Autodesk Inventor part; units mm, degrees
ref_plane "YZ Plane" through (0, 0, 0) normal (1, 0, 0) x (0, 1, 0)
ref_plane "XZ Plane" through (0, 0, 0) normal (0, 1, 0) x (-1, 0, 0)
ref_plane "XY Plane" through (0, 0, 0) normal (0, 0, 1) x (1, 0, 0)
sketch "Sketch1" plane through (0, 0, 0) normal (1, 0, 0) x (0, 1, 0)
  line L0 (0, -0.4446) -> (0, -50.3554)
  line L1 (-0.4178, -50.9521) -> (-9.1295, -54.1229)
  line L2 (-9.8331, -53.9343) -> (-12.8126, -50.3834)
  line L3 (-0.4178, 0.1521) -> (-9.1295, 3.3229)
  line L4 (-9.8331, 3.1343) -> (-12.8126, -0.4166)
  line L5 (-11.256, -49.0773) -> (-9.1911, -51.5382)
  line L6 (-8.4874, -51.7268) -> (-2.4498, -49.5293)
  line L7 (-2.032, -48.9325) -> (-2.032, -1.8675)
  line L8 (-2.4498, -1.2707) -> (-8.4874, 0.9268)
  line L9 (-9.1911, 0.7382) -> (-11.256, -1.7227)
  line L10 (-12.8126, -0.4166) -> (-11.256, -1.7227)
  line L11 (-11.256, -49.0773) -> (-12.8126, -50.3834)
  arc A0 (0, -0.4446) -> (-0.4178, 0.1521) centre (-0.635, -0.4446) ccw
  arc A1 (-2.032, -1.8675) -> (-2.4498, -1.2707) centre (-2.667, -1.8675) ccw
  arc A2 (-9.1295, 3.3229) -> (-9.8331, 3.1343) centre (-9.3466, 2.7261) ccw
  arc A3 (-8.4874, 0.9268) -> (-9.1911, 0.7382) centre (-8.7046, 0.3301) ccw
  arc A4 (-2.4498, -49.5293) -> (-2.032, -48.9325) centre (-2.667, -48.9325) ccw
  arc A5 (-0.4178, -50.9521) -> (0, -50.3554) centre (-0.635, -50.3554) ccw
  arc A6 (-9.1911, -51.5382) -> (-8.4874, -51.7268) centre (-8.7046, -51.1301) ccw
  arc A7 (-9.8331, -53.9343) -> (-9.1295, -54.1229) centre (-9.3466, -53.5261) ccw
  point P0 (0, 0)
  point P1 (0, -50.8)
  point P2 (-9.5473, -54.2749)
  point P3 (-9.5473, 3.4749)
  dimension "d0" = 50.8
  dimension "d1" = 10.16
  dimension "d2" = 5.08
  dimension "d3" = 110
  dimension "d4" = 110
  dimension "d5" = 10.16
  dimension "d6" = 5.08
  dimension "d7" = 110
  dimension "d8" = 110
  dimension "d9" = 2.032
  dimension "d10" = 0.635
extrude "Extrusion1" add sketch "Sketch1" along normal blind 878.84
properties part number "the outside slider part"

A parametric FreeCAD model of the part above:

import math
import FreeCAD as App
import Part
import Sketcher
Q = App.Units.Quantity

doc = App.newDocument("Part")
body = doc.addObject("PartDesign::Body", "Body")

# Sketch on YZ plane
sketch1 = body.newObject("Sketcher::SketchObject", "Sketch")
sketch1.AttachmentSupport = (doc.getObject("YZ_Plane"), [""])
sketch1.MapMode = "FlatFace"
sketch1.addGeometry(Part.LineSegment(App.Vector(0, -50.3554, 0), App.Vector(0, -0.4446, 0)), False)
sketch1.addGeometry(Part.ArcOfCircle(Part.Circle(App.Vector(-0.635, -0.4446, 0), App.Vector(0, 0, 1), 0.635), math.radians(0), math.radians(69.998392)), False)
sketch1.addGeometry(Part.LineSegment(App.Vector(-0.4178, 0.1521, 0), App.Vector(-9.1295, 3.3229, 0)), False)
sketch1.addGeometry(Part.ArcOfCircle(Part.Circle(App.Vector(-9.3466, 2.7261, 0), App.Vector(0, 0, 1), 0.635061), math.radians(70.009956), math.radians(140.001518)), False)
sketch1.addGeometry(Part.LineSegment(App.Vector(-9.8331, 3.1343, 0), App.Vector(-12.8126, -0.4166, 0)), False)
sketch1.addGeometry(Part.LineSegment(App.Vector(-12.8126, -0.4166, 0), App.Vector(-11.256, -1.7227, 0)), False)
sketch1.addGeometry(Part.LineSegment(App.Vector(-11.256, -1.7227, 0), App.Vector(-9.1911, 0.7382, 0)), False)
sketch1.addGeometry(Part.ArcOfCircle(Part.Circle(App.Vector(-8.7046, 0.3301, 0), App.Vector(0, 0, 1), 0.635001), math.radians(69.998392), math.radians(140.008431)), False)
sketch1.addGeometry(Part.LineSegment(App.Vector(-8.4874, 0.9268, 0), App.Vector(-2.4498, -1.2707, 0)), False)
sketch1.addGeometry(Part.ArcOfCircle(Part.Circle(App.Vector(-2.667, -1.8675, 0), App.Vector(0, 0, 1), 0.635), math.radians(0), math.radians(70.001478)), False)
sketch1.addGeometry(Part.LineSegment(App.Vector(-2.032, -1.8675, 0), App.Vector(-2.032, -48.9325, 0)), False)
sketch1.addGeometry(Part.ArcOfCircle(Part.Circle(App.Vector(-2.667, -48.9325, 0), App.Vector(0, 0, 1), 0.635095), math.radians(-70.001478), math.radians(0)), False)
sketch1.addGeometry(Part.LineSegment(App.Vector(-2.4498, -49.5293, 0), App.Vector(-8.4874, -51.7268, 0)), False)
sketch1.addGeometry(Part.ArcOfCircle(Part.Circle(App.Vector(-8.7046, -51.1301, 0), App.Vector(0, 0, 1), 0.635002), math.radians(-140.008431), math.radians(-69.998392)), False)
sketch1.addGeometry(Part.LineSegment(App.Vector(-9.1911, -51.5382, 0), App.Vector(-11.256, -49.0773, 0)), False)
sketch1.addGeometry(Part.LineSegment(App.Vector(-11.256, -49.0773, 0), App.Vector(-12.8126, -50.3834, 0)), False)
sketch1.addGeometry(Part.LineSegment(App.Vector(-12.8126, -50.3834, 0), App.Vector(-9.8331, -53.9343, 0)), False)
sketch1.addGeometry(Part.ArcOfCircle(Part.Circle(App.Vector(-9.3466, -53.5261, 0), App.Vector(0, 0, 1), 0.635067), math.radians(-140.001518), math.radians(-70.009956)), False)
sketch1.addGeometry(Part.LineSegment(App.Vector(-9.1295, -54.1229, 0), App.Vector(-0.4178, -50.9521, 0)), False)
sketch1.addGeometry(Part.ArcOfCircle(Part.Circle(App.Vector(-0.635, -50.3554, 0), App.Vector(0, 0, 1), 0.635001), math.radians(-69.998392), math.radians(0)), False)
sketch1.addConstraint(Sketcher.Constraint("Coincident", 0, 2, 1, 1))
sketch1.addConstraint(Sketcher.Constraint("Coincident", 1, 2, 2, 1))
sketch1.addConstraint(Sketcher.Constraint("Coincident", 2, 2, 3, 1))
sketch1.addConstraint(Sketcher.Constraint("Coincident", 3, 2, 4, 1))
sketch1.addConstraint(Sketcher.Constraint("Coincident", 4, 2, 5, 1))
sketch1.addConstraint(Sketcher.Constraint("Coincident", 5, 2, 6, 1))
sketch1.addConstraint(Sketcher.Constraint("Coincident", 6, 2, 7, 2))
sketch1.addConstraint(Sketcher.Constraint("Coincident", 7, 1, 8, 1))
sketch1.addConstraint(Sketcher.Constraint("Coincident", 8, 2, 9, 2))
sketch1.addConstraint(Sketcher.Constraint("Coincident", 9, 1, 10, 1))
sketch1.addConstraint(Sketcher.Constraint("Coincident", 10, 2, 11, 2))
sketch1.addConstraint(Sketcher.Constraint("Coincident", 11, 1, 12, 1))
sketch1.addConstraint(Sketcher.Constraint("Coincident", 12, 2, 13, 2))
sketch1.addConstraint(Sketcher.Constraint("Coincident", 13, 1, 14, 1))
sketch1.addConstraint(Sketcher.Constraint("Coincident", 14, 2, 15, 1))
sketch1.addConstraint(Sketcher.Constraint("Coincident", 15, 2, 16, 1))
sketch1.addConstraint(Sketcher.Constraint("Coincident", 16, 2, 17, 1))
sketch1.addConstraint(Sketcher.Constraint("Coincident", 17, 2, 18, 1))
sketch1.addConstraint(Sketcher.Constraint("Coincident", 18, 2, 19, 1))
sketch1.addConstraint(Sketcher.Constraint("Coincident", 19, 2, 0, 1))
sketch1.addConstraint(Sketcher.Constraint("Vertical", 0))
sketch1.addConstraint(Sketcher.Constraint("Vertical", 10))
sketch1.addConstraint(Sketcher.Constraint("PointOnObject", 0, 2, -2))
sketch1.addConstraint(Sketcher.Constraint("Radius", 1, Q("0.025 in")))
sketch1.addConstraint(Sketcher.Constraint("Radius", 3, Q("0.025 in")))
sketch1.addConstraint(Sketcher.Constraint("Radius", 7, Q("0.025 in")))
sketch1.addConstraint(Sketcher.Constraint("Radius", 9, Q("0.025 in")))
sketch1.addConstraint(Sketcher.Constraint("Radius", 11, Q("0.025 in")))
sketch1.addConstraint(Sketcher.Constraint("Radius", 13, Q("0.025 in")))
sketch1.addConstraint(Sketcher.Constraint("Radius", 17, Q("0.025 in")))
sketch1.addConstraint(Sketcher.Constraint("Radius", 19, Q("0.025 in")))
sketch1.addConstraint(Sketcher.Constraint("Distance", 5, Q("0.08 in")))
sketch1.addConstraint(Sketcher.Constraint("Distance", 15, Q("0.08 in")))
sketch1.addConstraint(Sketcher.Constraint("DistanceX", 9, 1, -1, 1, Q("0.08 in")))
sketch1.addConstraint(Sketcher.Constraint("DistanceX", 8, 2, 1, 2, Q("0.08 in")))
sketch1.addConstraint(Sketcher.Constraint("DistanceX", 11, 1, 18, 2, Q("0.08 in")))
sketch1.addConstraint(Sketcher.Constraint("DistanceY", 0, 1, 0, 2, Q("1.965 in")))
sketch1.addConstraint(Sketcher.Constraint("DistanceY", 12, 2, 11, 3, Q("0.11 in")))
sketch1.addConstraint(Sketcher.Constraint("DistanceY", 12, 2, 10, 2, Q("0.11 in")))
sketch1.addConstraint(Sketcher.Constraint("Distance", 2, Q("0.365 in")))
sketch1.addConstraint(Sketcher.Constraint("Distance", 18, Q("0.365 in")))
sketch1.addConstraint(Sketcher.Constraint("DistanceY", -1, 1, 7, 3, Q("0.013 in")))
sketch1.addConstraint(Sketcher.Constraint("DistanceY", 13, 3, -1, 1, Q("2.013 in")))
sketch1.addConstraint(Sketcher.Constraint("DistanceY", -1, 1, 1, 2, Q("0.006 in")))
sketch1.addConstraint(Sketcher.Constraint("DistanceY", 18, 2, -1, 1, Q("2.006 in")))
sketch1.addConstraint(Sketcher.Constraint("DistanceY", 19, 3, 1, 3, Q("1.965 in")))
sketch1.addConstraint(Sketcher.Constraint("DistanceX", 4, 2, 2, 2, Q("0.145 in")))
sketch1.addConstraint(Sketcher.Constraint("DistanceX", 14, 2, 12, 2, Q("0.109 in")))
sketch1.addConstraint(Sketcher.Constraint("Distance", 4, Q("0.1825 in")))
sketch1.addConstraint(Sketcher.Constraint("Distance", 16, Q("0.1825 in")))
sketch1.addConstraint(Sketcher.Constraint("DistanceY", 10, 2, 10, 1, 47.065))
sketch1.addConstraint(Sketcher.Constraint("DistanceY", 1, 3, -1, 1, Q("0.0175 in")))
sketch1.addConstraint(Sketcher.Constraint("DistanceX", 7, 3, -1, 1, Q("0.3427 in")))
sketch1.addConstraint(Sketcher.Constraint("DistanceX", 13, 3, -1, 1, Q("0.3427 in")))
sketch1.addConstraint(Sketcher.Constraint("DistanceY", 0, 2, -1, 1, Q("0.0175 in")))
sketch1.addConstraint(Sketcher.Constraint("DistanceY", -1, 1, 3, 2, Q("0.1234 in")))
sketch1.addConstraint(Sketcher.Constraint("DistanceY", 4, 2, -1, 1, Q("0.0164 in")))
sketch1.addConstraint(Sketcher.Constraint("DistanceY", -1, 1, 7, 1, Q("0.0365 in")))
sketch1.addConstraint(Sketcher.Constraint("DistanceY", 12, 2, -1, 1, Q("2.0365 in")))
sketch1.addConstraint(Sketcher.Constraint("DistanceY", 15, 2, -1, 1, Q("1.9836 in")))
sketch1.addConstraint(Sketcher.Constraint("DistanceY", 16, 2, -1, 1, Q("2.1234 in")))
sketch1.addConstraint(Sketcher.Constraint("DistanceY", 11, 3, 3, 3, Q("2.0338 in")))
sketch1.addConstraint(Sketcher.Constraint("DistanceY", 17, 3, 9, 3, Q("2.0338 in")))
sketch1.addConstraint(Sketcher.Constraint("DistanceY", 9, 3, 1, 2, Q("0.0795 in")))
sketch1.addConstraint(Sketcher.Constraint("DistanceX", 5, 2, 6, 2, Q("0.0813 in")))
sketch1.addConstraint(Sketcher.Constraint("DistanceX", 6, 2, 7, 1, Q("0.0277 in")))
sketch1.addConstraint(Sketcher.Constraint("DistanceX", 13, 1, 12, 2, Q("0.0277 in")))
sketch1.addConstraint(Sketcher.Constraint("DistanceY", 12, 2, 14, 2, Q("0.1043 in")))
pad1 = body.newObject("PartDesign::Pad", "Pad")
pad1.Profile = sketch1
pad1.Length = Q("34.6 in")

doc.recompute()
